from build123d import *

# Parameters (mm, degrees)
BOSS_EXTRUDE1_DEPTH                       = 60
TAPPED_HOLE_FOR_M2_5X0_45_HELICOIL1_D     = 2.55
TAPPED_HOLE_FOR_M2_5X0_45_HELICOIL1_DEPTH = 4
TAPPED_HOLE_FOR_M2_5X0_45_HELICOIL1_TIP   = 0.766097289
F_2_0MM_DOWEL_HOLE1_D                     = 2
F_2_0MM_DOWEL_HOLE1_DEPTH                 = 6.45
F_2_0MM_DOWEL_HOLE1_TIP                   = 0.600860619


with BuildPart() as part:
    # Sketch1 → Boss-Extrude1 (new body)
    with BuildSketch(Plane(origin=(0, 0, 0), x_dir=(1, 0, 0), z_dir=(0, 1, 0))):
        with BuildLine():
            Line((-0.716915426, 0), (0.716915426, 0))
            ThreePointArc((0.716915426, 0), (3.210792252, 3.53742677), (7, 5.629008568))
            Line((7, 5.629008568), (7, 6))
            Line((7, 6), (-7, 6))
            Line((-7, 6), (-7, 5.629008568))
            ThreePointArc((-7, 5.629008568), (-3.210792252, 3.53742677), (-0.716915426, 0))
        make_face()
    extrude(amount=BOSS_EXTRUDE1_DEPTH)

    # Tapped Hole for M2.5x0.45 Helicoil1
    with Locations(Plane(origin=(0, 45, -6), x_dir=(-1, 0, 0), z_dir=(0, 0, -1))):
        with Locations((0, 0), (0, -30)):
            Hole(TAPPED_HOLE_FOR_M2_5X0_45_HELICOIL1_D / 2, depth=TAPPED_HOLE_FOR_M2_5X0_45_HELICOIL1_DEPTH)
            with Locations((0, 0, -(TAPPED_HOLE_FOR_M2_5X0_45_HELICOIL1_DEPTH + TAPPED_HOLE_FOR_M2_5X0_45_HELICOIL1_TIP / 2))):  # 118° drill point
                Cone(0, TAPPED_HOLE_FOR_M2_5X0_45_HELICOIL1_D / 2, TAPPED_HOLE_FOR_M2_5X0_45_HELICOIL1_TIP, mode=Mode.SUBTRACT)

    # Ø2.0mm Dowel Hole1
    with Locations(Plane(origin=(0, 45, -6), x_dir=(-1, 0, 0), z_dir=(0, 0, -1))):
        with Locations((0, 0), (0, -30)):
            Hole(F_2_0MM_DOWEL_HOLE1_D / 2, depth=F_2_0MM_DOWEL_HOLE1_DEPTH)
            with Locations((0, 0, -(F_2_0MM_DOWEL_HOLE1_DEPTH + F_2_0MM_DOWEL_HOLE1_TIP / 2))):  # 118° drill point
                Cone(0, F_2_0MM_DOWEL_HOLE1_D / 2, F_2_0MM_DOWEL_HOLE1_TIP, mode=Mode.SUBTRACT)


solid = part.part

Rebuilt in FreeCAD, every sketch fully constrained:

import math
import FreeCAD as App
import Part
import Sketcher
from FreeCAD import Vector

doc = App.newDocument("Part")
body = doc.addObject("PartDesign::Body", "Body")

# Sketch on XZ plane
sketch1 = doc.addObject("Sketcher::SketchObject", "Sketch")
body.addObject(sketch1)
sketch1.AttachmentSupport = (doc.XZ_Plane, [""])
sketch1.MapMode = "FlatFace"
sketch1.addGeometry(Part.LineSegment(Vector(-0.716915, 0, 0), Vector(0.716915, 0, 0)), False)
sketch1.addGeometry(Part.ArcOfCircle(Part.Circle(Vector(9.65, 3.65, 0), Vector(0, 0, 1), 9.65), math.radians(-157.775396), math.radians(-105.938857)), False)
sketch1.addGeometry(Part.LineSegment(Vector(7, -5.629009, 0), Vector(7, -6, 0)), False)
sketch1.addGeometry(Part.LineSegment(Vector(7, -6, 0), Vector(-7, -6, 0)), False)
sketch1.addGeometry(Part.LineSegment(Vector(-7, -6, 0), Vector(-7, -5.629009, 0)), False)
sketch1.addGeometry(Part.ArcOfCircle(Part.Circle(Vector(-9.65, 3.65, 0), Vector(0, 0, 1), 9.65), math.radians(-74.061143), math.radians(-22.224604)), False)
sketch1.addConstraint(Sketcher.Constraint("Coincident", 0, 2, 1, 1))
sketch1.addConstraint(Sketcher.Constraint("Coincident", 1, 2, 2, 1))
sketch1.addConstraint(Sketcher.Constraint("Coincident", 2, 2, 3, 1))
sketch1.addConstraint(Sketcher.Constraint("Coincident", 3, 2, 4, 1))
sketch1.addConstraint(Sketcher.Constraint("Coincident", 4, 2, 5, 1))
sketch1.addConstraint(Sketcher.Constraint("Coincident", 5, 2, 0, 1))
sketch1.addConstraint(Sketcher.Constraint("Horizontal", 0))
sketch1.addConstraint(Sketcher.Constraint("Vertical", 2))
sketch1.addConstraint(Sketcher.Constraint("Horizontal", 3))
sketch1.addConstraint(Sketcher.Constraint("Vertical", 4))
sketch1.addConstraint(Sketcher.Constraint("Equal", 1, 5))
sketch1.addConstraint(Sketcher.Constraint("Symmetric", 0, 2, 5, 2, -1, 1))
sketch1.addConstraint(Sketcher.Constraint("Symmetric", 1, 2, 4, 2, -2))
sketch1.addConstraint(Sketcher.Constraint("DistanceX", 3, 2, 3, 1, 14.0))
sketch1.addConstraint(Sketcher.Constraint("Radius", 1, 9.65))
sketch1.addConstraint(Sketcher.Constraint("DistanceY", 2, 2, -1, 1, 6.0))
sketch1.addConstraint(Sketcher.Constraint("DistanceX", 5, 3, 1, 3, 19.3))
sketch1.addConstraint(Sketcher.Constraint("DistanceY", -1, 1, 1, 3, 3.65))
pad1 = doc.addObject("PartDesign::Pad", "Pad")
body.addObject(pad1)
pad1.Profile = sketch1
pad1.Length = 60
pad1.Reversed = True

# Sketch on XY plane
sketch2 = doc.addObject("Sketcher::SketchObject", "Sketch001")
body.addObject(sketch2)
sketch2.AttachmentSupport = (doc.XY_Plane, [""])
sketch2.MapMode = "FlatFace"
sketch2.AttachmentOffset = App.Placement(Vector(0, 0, -6), App.Rotation())
sketch2.addGeometry(Part.Circle(Vector(0, 45, 0), Vector(0, 0, 1), 1.275), False)
sketch2.addGeometry(Part.Circle(Vector(0, 15, 0), Vector(0, 0, 1), 1.275), False)
sketch2.addConstraint(Sketcher.Constraint("Equal", 0, 1))
sketch2.addConstraint(Sketcher.Constraint("PointOnObject", 0, 3, -2))
sketch2.addConstraint(Sketcher.Constraint("PointOnObject", 1, 3, -2))
sketch2.addConstraint(Sketcher.Constraint("Diameter", 0, 2.55))
sketch2.addConstraint(Sketcher.Constraint("DistanceY", -1, 1, 0, 3, 45.0))
sketch2.addConstraint(Sketcher.Constraint("DistanceY", -1, 1, 1, 3, 15.0))
doc.recompute()
hole = doc.addObject("PartDesign::Hole", "Hole")
body.addObject(hole)
hole.Profile = sketch2
hole.ThreadType = "None"
hole.Diameter = 2.55
hole.DepthType = "Dimension"
hole.Depth = 4
hole.DrillPoint = "Angled"
hole.DrillPointAngle = 118
hole.Reversed = True

# Sketch on XY plane
sketch3 = doc.addObject("Sketcher::SketchObject", "Sketch002")
body.addObject(sketch3)
sketch3.AttachmentSupport = (doc.XY_Plane, [""])
sketch3.MapMode = "FlatFace"
sketch3.AttachmentOffset = App.Placement(Vector(0, 0, -6), App.Rotation())
sketch3.addGeometry(Part.Circle(Vector(0, 45, 0), Vector(0, 0, 1), 1), False)
sketch3.addGeometry(Part.Circle(Vector(0, 15, 0), Vector(0, 0, 1), 1), False)
sketch3.addConstraint(Sketcher.Constraint("Equal", 0, 1))
sketch3.addConstraint(Sketcher.Constraint("PointOnObject", 0, 3, -2))
sketch3.addConstraint(Sketcher.Constraint("PointOnObject", 1, 3, -2))
sketch3.addConstraint(Sketcher.Constraint("Diameter", 0, 2.0))
sketch3.addConstraint(Sketcher.Constraint("DistanceY", -1, 1, 0, 3, 45.0))
sketch3.addConstraint(Sketcher.Constraint("DistanceY", -1, 1, 1, 3, 15.0))
doc.recompute()
hole2 = doc.addObject("PartDesign::Hole", "Hole001")
body.addObject(hole2)
hole2.Profile = sketch3
hole2.ThreadType = "None"
hole2.Diameter = 2
hole2.DepthType = "Dimension"
hole2.Depth = 6.45
hole2.DrillPoint = "Angled"
hole2.DrillPointAngle = 118
hole2.Reversed = True

doc.recompute()
